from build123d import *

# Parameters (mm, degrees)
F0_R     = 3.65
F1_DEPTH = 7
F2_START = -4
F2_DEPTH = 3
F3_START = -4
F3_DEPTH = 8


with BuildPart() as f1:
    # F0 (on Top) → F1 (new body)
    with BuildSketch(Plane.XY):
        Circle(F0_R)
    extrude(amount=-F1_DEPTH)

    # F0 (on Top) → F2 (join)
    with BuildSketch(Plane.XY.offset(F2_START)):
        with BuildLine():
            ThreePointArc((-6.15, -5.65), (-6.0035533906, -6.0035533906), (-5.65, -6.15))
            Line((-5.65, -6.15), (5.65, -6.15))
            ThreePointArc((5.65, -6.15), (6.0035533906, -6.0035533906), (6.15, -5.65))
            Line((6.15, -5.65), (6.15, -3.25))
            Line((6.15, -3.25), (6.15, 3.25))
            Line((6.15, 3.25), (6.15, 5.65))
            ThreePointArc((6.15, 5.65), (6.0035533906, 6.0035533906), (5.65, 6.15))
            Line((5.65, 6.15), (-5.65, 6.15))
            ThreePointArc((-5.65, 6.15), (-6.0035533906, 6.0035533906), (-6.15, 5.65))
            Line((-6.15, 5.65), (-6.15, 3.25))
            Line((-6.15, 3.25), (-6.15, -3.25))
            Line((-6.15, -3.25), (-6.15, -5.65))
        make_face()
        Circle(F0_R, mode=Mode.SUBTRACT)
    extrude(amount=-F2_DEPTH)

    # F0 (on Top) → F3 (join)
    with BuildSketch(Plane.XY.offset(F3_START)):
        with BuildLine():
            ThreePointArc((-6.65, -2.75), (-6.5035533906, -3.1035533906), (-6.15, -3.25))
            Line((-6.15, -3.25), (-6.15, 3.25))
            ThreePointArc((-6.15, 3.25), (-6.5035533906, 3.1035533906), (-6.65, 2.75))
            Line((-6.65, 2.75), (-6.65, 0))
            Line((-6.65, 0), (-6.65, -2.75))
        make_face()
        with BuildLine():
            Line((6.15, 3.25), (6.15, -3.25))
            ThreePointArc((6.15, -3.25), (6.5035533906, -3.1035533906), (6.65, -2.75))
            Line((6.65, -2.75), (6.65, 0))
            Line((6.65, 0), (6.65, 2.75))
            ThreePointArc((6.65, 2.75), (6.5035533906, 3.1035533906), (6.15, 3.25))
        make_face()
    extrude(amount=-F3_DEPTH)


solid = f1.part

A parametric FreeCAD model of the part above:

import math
import FreeCAD as App
import Part
import Sketcher

doc = App.newDocument("Part")
body = doc.addObject("PartDesign::Body", "Body")

sketch1 = body.newObject("Sketcher::SketchObject", "Sketch")
sketch1.AttachmentSupport = (doc.getObject("XY_Plane"), [""])
sketch1.MapMode = "FlatFace"
sketch1.addGeometry(Part.Circle(App.Vector(0, 0, 0), App.Vector(0, 0, 1), 3.65), False)
sketch1.addConstraint([
    Sketcher.Constraint("Coincident", 0, 3, -1, 1),
    Sketcher.Constraint("Diameter", 0, 7.3),
])
pad1 = body.newObject("PartDesign::Pad", "Pad")
pad1.Profile = sketch1
pad1.Length = 7
pad1.Reversed = True

sketch2 = body.newObject("Sketcher::SketchObject", "Sketch001")
sketch2.AttachmentSupport = (doc.getObject("XY_Plane"), [""])
sketch2.MapMode = "FlatFace"
sketch2.AttachmentOffset = App.Placement(App.Vector(0, 0, -4), App.Rotation())
sketch2.addGeometry([
    Part.ArcOfCircle(Part.Circle(App.Vector(-5.65, -5.65, 0), App.Vector(0, 0, 1), 0.5), math.radians(180), math.radians(270)),
    Part.LineSegment(App.Vector(-5.65, -6.15, 0), App.Vector(5.65, -6.15, 0)),
    Part.ArcOfCircle(Part.Circle(App.Vector(5.65, -5.65, 0), App.Vector(0, 0, 1), 0.5), math.radians(-90), math.radians(0)),
    Part.LineSegment(App.Vector(6.15, -5.65, 0), App.Vector(6.15, 5.65, 0)),
    Part.ArcOfCircle(Part.Circle(App.Vector(5.65, 5.65, 0), App.Vector(0, 0, 1), 0.5), math.radians(0), math.radians(90)),
    Part.LineSegment(App.Vector(5.65, 6.15, 0), App.Vector(-5.65, 6.15, 0)),
    Part.ArcOfCircle(Part.Circle(App.Vector(-5.65, 5.65, 0), App.Vector(0, 0, 1), 0.5), math.radians(90), math.radians(180)),
    Part.LineSegment(App.Vector(-6.15, 5.65, 0), App.Vector(-6.15, -5.65, 0)),
    Part.Circle(App.Vector(0, 0, 0), App.Vector(0, 0, 1), 3.65),
], False)
sketch2.addConstraint([
    Sketcher.Constraint("Tangent", 0, 2, 1, 1),
    Sketcher.Constraint("Tangent", 1, 2, 2, 1),
    Sketcher.Constraint("Tangent", 2, 2, 3, 1),
    Sketcher.Constraint("Tangent", 3, 2, 4, 1),
    Sketcher.Constraint("Tangent", 4, 2, 5, 1),
    Sketcher.Constraint("Tangent", 5, 2, 6, 1),
    Sketcher.Constraint("Tangent", 6, 2, 7, 1),
    Sketcher.Constraint("Tangent", 7, 2, 0, 1),
    Sketcher.Constraint("Horizontal", 1),
    Sketcher.Constraint("Vertical", 3),
    Sketcher.Constraint("Horizontal", 5),
    Sketcher.Constraint("Vertical", 7),
    Sketcher.Constraint("Coincident", 8, 3, -1, 1),
    Sketcher.Constraint("Equal", 0, 2),
    Sketcher.Constraint("Equal", 2, 4),
    Sketcher.Constraint("Equal", 4, 6),
    Sketcher.Constraint("Symmetric", 0, 3, 4, 3, -1, 1),
    Sketcher.Constraint("Equal", 5, 3),
    Sketcher.Constraint("Diameter", 8, 7.3),
    Sketcher.Constraint("Radius", 0, 0.5),
    Sketcher.Constraint("DistanceX", 1, 1, 1, 2, 11.3),
])
pad2 = body.newObject("PartDesign::Pad", "Pad001")
pad2.Profile = sketch2
pad2.Length = 3
pad2.Reversed = True

sketch3 = body.newObject("Sketcher::SketchObject", "Sketch002")
sketch3.AttachmentSupport = (doc.getObject("XY_Plane"), [""])
sketch3.MapMode = "FlatFace"
sketch3.AttachmentOffset = App.Placement(App.Vector(0, 0, -4), App.Rotation())
sketch3.addGeometry([
    Part.ArcOfCircle(Part.Circle(App.Vector(-6.15, -2.75, 0), App.Vector(0, 0, 1), 0.5), math.radians(180), math.radians(270)),
    Part.LineSegment(App.Vector(-6.15, -3.25, 0), App.Vector(-6.15, 3.25, 0)),
    Part.ArcOfCircle(Part.Circle(App.Vector(-6.15, 2.75, 0), App.Vector(0, 0, 1), 0.5), math.radians(90), math.radians(180)),
    Part.LineSegment(App.Vector(-6.65, 2.75, 0), App.Vector(-6.65, -2.75, 0)),
    Part.LineSegment(App.Vector(6.15, 3.25, 0), App.Vector(6.15, -3.25, 0)),
    Part.ArcOfCircle(Part.Circle(App.Vector(6.15, -2.75, 0), App.Vector(0, 0, 1), 0.5), math.radians(-90), math.radians(0)),
    Part.LineSegment(App.Vector(6.65, -2.75, 0), App.Vector(6.65, 2.75, 0)),
    Part.ArcOfCircle(Part.Circle(App.Vector(6.15, 2.75, 0), App.Vector(0, 0, 1), 0.5), math.radians(0), math.radians(90)),
], False)
sketch3.addConstraint([
    Sketcher.Constraint("Coincident", 0, 2, 1, 1),
    Sketcher.Constraint("Coincident", 1, 2, 2, 1),
    Sketcher.Constraint("Tangent", 2, 2, 3, 1),
    Sketcher.Constraint("Tangent", 3, 2, 0, 1),
    Sketcher.Constraint("Coincident", 4, 2, 5, 1),
    Sketcher.Constraint("Tangent", 5, 2, 6, 1),
    Sketcher.Constraint("Tangent", 6, 2, 7, 1),
    Sketcher.Constraint("Coincident", 7, 2, 4, 1),
    Sketcher.Constraint("Vertical", 1),
    Sketcher.Constraint("Vertical", 3),
    Sketcher.Constraint("Vertical", 4),
    Sketcher.Constraint("Vertical", 6),
    Sketcher.Constraint("Equal", 0, 2),
    Sketcher.Constraint("Equal", 2, 5),
    Sketcher.Constraint("Equal", 5, 7),
    Sketcher.Constraint("Symmetric", 2, 3, 5, 3, -1, 1),
    Sketcher.Constraint("Symmetric", 0, 2, 7, 2, -1, 1),
    Sketcher.Constraint("Horizontal", 0, 3, 5, 3),
    Sketcher.Constraint("Vertical", 2, 3, 0, 2),
    Sketcher.Constraint("Radius", 0, 0.5),
    Sketcher.Constraint("DistanceY", 1, 1, 1, 2, 6.5),
    Sketcher.Constraint("DistanceX", 0, 3, 5, 3, 12.3),
])
pad3 = body.newObject("PartDesign::Pad", "Pad002")
pad3.Profile = sketch3
pad3.Length = 8
pad3.Reversed = True

doc.recompute()
